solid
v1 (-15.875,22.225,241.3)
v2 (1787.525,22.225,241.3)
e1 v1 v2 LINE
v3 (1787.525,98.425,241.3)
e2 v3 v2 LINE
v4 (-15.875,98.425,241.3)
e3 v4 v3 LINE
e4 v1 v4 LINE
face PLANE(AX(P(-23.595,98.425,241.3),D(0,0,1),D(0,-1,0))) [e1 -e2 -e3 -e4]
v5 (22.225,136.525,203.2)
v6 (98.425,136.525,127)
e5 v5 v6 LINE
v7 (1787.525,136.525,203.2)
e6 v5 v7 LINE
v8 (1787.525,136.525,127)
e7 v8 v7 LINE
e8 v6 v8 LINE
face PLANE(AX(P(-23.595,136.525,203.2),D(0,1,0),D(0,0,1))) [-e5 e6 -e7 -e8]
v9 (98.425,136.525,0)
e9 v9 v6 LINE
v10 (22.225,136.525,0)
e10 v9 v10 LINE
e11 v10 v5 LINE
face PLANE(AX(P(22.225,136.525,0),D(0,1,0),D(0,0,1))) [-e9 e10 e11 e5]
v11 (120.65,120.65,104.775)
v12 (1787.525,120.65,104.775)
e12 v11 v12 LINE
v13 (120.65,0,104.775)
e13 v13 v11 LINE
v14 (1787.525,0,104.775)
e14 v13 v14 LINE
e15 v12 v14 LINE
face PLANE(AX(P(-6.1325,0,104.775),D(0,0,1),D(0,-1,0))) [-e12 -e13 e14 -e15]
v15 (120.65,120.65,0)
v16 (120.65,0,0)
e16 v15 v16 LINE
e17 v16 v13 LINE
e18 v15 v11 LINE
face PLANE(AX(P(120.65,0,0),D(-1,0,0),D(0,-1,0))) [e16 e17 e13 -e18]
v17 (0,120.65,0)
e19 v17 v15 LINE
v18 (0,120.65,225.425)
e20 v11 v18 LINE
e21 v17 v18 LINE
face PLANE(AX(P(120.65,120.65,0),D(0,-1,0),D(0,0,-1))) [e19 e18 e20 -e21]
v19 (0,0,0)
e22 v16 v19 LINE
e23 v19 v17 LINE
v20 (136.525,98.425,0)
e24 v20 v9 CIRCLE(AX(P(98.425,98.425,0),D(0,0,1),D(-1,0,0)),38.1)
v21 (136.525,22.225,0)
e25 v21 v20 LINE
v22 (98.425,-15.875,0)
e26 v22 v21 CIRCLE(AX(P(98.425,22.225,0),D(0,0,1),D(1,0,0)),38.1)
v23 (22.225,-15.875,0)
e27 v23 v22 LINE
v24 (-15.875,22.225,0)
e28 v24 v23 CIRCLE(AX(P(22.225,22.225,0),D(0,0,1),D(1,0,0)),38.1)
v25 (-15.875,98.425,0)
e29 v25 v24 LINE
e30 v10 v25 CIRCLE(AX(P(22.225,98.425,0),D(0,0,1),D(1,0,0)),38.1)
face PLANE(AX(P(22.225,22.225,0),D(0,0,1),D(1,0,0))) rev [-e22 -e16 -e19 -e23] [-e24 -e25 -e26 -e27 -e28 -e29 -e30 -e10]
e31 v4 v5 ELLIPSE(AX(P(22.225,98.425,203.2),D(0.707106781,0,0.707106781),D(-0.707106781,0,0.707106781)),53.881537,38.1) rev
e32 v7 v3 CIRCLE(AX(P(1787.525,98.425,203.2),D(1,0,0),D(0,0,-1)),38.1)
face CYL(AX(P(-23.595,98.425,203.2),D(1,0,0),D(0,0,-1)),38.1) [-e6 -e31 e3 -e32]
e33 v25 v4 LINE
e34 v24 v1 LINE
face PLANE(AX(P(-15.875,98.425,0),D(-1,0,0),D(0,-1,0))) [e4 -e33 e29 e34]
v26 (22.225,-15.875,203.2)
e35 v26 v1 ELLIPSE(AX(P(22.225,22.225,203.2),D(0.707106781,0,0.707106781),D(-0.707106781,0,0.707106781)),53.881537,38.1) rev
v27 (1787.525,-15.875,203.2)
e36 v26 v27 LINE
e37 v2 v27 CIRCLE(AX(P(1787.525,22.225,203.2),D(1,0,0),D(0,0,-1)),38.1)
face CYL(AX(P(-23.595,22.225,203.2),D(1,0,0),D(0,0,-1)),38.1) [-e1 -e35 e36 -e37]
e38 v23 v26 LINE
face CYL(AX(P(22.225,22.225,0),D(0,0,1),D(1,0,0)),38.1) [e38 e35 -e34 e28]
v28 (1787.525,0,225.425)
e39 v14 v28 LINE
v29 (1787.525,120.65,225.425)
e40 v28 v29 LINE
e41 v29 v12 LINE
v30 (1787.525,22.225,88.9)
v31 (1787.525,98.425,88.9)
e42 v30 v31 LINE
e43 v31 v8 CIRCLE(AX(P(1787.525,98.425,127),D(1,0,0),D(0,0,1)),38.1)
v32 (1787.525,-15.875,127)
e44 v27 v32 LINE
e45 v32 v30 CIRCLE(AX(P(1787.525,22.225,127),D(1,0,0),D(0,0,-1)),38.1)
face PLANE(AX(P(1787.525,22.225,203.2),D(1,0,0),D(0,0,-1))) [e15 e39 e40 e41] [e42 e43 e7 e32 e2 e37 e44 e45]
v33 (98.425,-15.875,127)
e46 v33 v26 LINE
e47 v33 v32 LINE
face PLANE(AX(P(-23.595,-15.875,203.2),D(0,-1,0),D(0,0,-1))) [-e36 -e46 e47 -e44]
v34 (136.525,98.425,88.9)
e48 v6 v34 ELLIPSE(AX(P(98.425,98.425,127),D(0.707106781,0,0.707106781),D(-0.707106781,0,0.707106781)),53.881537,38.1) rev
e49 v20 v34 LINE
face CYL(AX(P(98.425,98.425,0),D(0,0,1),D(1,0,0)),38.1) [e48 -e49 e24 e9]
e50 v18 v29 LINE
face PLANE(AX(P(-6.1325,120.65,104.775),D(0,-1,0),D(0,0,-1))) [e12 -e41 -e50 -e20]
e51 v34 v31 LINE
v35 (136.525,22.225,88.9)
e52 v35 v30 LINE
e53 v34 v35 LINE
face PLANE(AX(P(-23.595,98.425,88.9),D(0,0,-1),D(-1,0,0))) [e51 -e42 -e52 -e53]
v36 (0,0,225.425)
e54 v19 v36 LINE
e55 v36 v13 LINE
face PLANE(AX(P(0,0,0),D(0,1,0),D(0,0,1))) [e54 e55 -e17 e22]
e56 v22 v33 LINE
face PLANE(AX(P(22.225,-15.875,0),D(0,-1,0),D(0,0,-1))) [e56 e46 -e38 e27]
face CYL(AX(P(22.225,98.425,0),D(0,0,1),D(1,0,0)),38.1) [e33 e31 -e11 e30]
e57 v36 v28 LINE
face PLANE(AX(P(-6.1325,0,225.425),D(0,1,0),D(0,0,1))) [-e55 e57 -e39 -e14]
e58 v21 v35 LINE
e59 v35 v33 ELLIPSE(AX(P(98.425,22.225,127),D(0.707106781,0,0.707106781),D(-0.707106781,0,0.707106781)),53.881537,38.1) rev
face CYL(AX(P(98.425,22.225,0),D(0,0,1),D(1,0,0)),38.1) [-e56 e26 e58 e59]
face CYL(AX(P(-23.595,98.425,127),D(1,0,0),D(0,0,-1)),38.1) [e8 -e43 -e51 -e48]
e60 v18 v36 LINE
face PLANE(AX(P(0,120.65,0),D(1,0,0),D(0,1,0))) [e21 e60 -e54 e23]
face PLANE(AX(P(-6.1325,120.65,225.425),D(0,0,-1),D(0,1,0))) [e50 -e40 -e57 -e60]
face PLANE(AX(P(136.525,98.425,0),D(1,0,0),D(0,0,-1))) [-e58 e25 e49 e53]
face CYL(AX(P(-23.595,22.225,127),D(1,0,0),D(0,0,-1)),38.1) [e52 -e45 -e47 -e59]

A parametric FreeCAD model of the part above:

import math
import FreeCAD as App
import Part
import Sketcher
Q = App.Units.Quantity

doc = App.newDocument("Part")
body = doc.addObject("PartDesign::Body", "Body")

# Sketch on XY plane
sketch1 = doc.addObject("Sketcher::SketchObject", "Sketch")
body.addObject(sketch1)
sketch1.AttachmentSupport = (doc.XY_Plane, [""])
sketch1.MapMode = "FlatFace"
sketch1.addGeometry([
    Part.LineSegment(App.Vector(98, 137, 0), App.Vector(22, 137, 0)),  # 0
    Part.ArcOfCircle(Part.Circle(App.Vector(22, 98, 0), App.Vector(0, 0, 1), 38), math.radians(90), math.radians(180)),  # 1
    Part.LineSegment(App.Vector(-16, 98, 0), App.Vector(-16, 22, 0)),  # 2
    Part.ArcOfCircle(Part.Circle(App.Vector(22, 22, 0), App.Vector(0, 0, 1), 38), math.radians(-180), math.radians(-90)),  # 3
    Part.LineSegment(App.Vector(22, -16, 0), App.Vector(98, -16, 0)),  # 4
    Part.ArcOfCircle(Part.Circle(App.Vector(98, 22, 0), App.Vector(0, 0, 1), 38), math.radians(-90), math.radians(0)),  # 5
    Part.LineSegment(App.Vector(137, 22, 0), App.Vector(137, 98, 0)),  # 6
    Part.ArcOfCircle(Part.Circle(App.Vector(98, 98, 0), App.Vector(0, 0, 1), 38), math.radians(0), math.radians(90)),  # 7
    Part.LineSegment(App.Vector(0, 0, 0), App.Vector(0, 121, 0)),  # 8
    Part.LineSegment(App.Vector(0, 121, 0), App.Vector(121, 121, 0)),  # 9
    Part.LineSegment(App.Vector(121, 121, 0), App.Vector(121, 0, 0)),  # 10
    Part.LineSegment(App.Vector(121, 0, 0), App.Vector(0, 0, 0)),  # 11
], False)
sketch1.addConstraint([
    Sketcher.Constraint("Tangent", 0, 2, 1, 1),
    Sketcher.Constraint("Tangent", 1, 2, 2, 1),
    Sketcher.Constraint("Tangent", 2, 2, 3, 1),
    Sketcher.Constraint("Tangent", 3, 2, 4, 1),
    Sketcher.Constraint("Tangent", 4, 2, 5, 1),
    Sketcher.Constraint("Tangent", 5, 2, 6, 1),
    Sketcher.Constraint("Tangent", 6, 2, 7, 1),
    Sketcher.Constraint("Tangent", 7, 2, 0, 1),
    Sketcher.Constraint("Coincident", 8, 2, 9, 1),
    Sketcher.Constraint("Coincident", 9, 2, 10, 1),
    Sketcher.Constraint("Coincident", 10, 2, 11, 1),
    Sketcher.Constraint("Coincident", 11, 2, 8, 1),
    Sketcher.Constraint("Horizontal", 0),
    Sketcher.Constraint("Vertical", 2),
    Sketcher.Constraint("Horizontal", 4),
    Sketcher.Constraint("Vertical", 6),
    Sketcher.Constraint("Vertical", 8),
    Sketcher.Constraint("Horizontal", 9),
    Sketcher.Constraint("Vertical", 10),
    Sketcher.Constraint("Horizontal", 11),
    Sketcher.Constraint("Coincident", 11, 2, -1, 1),
    Sketcher.Constraint("Equal", 1, 3),
    Sketcher.Constraint("Equal", 3, 5),
    Sketcher.Constraint("Equal", 5, 7),
    Sketcher.Constraint("Equal", 4, 2),
    Sketcher.Constraint("Equal", 11, 8),
    Sketcher.Constraint("Radius", 1, Q("1.5 in")),
    Sketcher.Constraint("DistanceX", 0, 2, 0, 1, Q("3 in")),
    Sketcher.Constraint("DistanceX", 9, 1, 9, 2, Q("4.75 in")),
    Sketcher.Constraint("DistanceX", -1, 1, 1, 3, Q("0.875 in")),
    Sketcher.Constraint("DistanceY", -1, 1, 1, 3, Q("3.875 in")),
])

# Sketch on XZ plane
sketch2 = doc.addObject("Sketcher::SketchObject", "Sketch001")
body.addObject(sketch2)
sketch2.AttachmentSupport = (doc.XZ_Plane, [""])
sketch2.MapMode = "FlatFace"
sketch2.AttachmentOffset = App.Placement(App.Vector(0, 0, -2.375 * 25.4), App.Rotation())
sketch2.addGeometry([
    Part.LineSegment(App.Vector(60, 0, 0), App.Vector(60, 165, 0)),
    Part.LineSegment(App.Vector(60, 165, 0), App.Vector(1788, 165, 0)),
], False)
sketch2.addConstraint([
    Sketcher.Constraint("Coincident", 0, 2, 1, 1),
    Sketcher.Constraint("Vertical", 0),
    Sketcher.Constraint("Horizontal", 1),
    Sketcher.Constraint("PointOnObject", 0, 1, -1),
    Sketcher.Constraint("DistanceX", 1, 1, 1, 2, Q("68 in")),
    Sketcher.Constraint("DistanceY", 0, 1, 0, 2, Q("6.5 in")),
    Sketcher.Constraint("DistanceX", -1, 1, 0, 1, Q("2.375 in")),
])
doc.recompute()

additivepipe = doc.addObject("PartDesign::AdditivePipe", "AdditivePipe")
body.addObject(additivepipe)
additivepipe.Profile = sketch1
additivepipe.Spine = (sketch2, ["Edge1", "Edge2"])
additivepipe.Transition = "Right corner"

doc.recompute()
